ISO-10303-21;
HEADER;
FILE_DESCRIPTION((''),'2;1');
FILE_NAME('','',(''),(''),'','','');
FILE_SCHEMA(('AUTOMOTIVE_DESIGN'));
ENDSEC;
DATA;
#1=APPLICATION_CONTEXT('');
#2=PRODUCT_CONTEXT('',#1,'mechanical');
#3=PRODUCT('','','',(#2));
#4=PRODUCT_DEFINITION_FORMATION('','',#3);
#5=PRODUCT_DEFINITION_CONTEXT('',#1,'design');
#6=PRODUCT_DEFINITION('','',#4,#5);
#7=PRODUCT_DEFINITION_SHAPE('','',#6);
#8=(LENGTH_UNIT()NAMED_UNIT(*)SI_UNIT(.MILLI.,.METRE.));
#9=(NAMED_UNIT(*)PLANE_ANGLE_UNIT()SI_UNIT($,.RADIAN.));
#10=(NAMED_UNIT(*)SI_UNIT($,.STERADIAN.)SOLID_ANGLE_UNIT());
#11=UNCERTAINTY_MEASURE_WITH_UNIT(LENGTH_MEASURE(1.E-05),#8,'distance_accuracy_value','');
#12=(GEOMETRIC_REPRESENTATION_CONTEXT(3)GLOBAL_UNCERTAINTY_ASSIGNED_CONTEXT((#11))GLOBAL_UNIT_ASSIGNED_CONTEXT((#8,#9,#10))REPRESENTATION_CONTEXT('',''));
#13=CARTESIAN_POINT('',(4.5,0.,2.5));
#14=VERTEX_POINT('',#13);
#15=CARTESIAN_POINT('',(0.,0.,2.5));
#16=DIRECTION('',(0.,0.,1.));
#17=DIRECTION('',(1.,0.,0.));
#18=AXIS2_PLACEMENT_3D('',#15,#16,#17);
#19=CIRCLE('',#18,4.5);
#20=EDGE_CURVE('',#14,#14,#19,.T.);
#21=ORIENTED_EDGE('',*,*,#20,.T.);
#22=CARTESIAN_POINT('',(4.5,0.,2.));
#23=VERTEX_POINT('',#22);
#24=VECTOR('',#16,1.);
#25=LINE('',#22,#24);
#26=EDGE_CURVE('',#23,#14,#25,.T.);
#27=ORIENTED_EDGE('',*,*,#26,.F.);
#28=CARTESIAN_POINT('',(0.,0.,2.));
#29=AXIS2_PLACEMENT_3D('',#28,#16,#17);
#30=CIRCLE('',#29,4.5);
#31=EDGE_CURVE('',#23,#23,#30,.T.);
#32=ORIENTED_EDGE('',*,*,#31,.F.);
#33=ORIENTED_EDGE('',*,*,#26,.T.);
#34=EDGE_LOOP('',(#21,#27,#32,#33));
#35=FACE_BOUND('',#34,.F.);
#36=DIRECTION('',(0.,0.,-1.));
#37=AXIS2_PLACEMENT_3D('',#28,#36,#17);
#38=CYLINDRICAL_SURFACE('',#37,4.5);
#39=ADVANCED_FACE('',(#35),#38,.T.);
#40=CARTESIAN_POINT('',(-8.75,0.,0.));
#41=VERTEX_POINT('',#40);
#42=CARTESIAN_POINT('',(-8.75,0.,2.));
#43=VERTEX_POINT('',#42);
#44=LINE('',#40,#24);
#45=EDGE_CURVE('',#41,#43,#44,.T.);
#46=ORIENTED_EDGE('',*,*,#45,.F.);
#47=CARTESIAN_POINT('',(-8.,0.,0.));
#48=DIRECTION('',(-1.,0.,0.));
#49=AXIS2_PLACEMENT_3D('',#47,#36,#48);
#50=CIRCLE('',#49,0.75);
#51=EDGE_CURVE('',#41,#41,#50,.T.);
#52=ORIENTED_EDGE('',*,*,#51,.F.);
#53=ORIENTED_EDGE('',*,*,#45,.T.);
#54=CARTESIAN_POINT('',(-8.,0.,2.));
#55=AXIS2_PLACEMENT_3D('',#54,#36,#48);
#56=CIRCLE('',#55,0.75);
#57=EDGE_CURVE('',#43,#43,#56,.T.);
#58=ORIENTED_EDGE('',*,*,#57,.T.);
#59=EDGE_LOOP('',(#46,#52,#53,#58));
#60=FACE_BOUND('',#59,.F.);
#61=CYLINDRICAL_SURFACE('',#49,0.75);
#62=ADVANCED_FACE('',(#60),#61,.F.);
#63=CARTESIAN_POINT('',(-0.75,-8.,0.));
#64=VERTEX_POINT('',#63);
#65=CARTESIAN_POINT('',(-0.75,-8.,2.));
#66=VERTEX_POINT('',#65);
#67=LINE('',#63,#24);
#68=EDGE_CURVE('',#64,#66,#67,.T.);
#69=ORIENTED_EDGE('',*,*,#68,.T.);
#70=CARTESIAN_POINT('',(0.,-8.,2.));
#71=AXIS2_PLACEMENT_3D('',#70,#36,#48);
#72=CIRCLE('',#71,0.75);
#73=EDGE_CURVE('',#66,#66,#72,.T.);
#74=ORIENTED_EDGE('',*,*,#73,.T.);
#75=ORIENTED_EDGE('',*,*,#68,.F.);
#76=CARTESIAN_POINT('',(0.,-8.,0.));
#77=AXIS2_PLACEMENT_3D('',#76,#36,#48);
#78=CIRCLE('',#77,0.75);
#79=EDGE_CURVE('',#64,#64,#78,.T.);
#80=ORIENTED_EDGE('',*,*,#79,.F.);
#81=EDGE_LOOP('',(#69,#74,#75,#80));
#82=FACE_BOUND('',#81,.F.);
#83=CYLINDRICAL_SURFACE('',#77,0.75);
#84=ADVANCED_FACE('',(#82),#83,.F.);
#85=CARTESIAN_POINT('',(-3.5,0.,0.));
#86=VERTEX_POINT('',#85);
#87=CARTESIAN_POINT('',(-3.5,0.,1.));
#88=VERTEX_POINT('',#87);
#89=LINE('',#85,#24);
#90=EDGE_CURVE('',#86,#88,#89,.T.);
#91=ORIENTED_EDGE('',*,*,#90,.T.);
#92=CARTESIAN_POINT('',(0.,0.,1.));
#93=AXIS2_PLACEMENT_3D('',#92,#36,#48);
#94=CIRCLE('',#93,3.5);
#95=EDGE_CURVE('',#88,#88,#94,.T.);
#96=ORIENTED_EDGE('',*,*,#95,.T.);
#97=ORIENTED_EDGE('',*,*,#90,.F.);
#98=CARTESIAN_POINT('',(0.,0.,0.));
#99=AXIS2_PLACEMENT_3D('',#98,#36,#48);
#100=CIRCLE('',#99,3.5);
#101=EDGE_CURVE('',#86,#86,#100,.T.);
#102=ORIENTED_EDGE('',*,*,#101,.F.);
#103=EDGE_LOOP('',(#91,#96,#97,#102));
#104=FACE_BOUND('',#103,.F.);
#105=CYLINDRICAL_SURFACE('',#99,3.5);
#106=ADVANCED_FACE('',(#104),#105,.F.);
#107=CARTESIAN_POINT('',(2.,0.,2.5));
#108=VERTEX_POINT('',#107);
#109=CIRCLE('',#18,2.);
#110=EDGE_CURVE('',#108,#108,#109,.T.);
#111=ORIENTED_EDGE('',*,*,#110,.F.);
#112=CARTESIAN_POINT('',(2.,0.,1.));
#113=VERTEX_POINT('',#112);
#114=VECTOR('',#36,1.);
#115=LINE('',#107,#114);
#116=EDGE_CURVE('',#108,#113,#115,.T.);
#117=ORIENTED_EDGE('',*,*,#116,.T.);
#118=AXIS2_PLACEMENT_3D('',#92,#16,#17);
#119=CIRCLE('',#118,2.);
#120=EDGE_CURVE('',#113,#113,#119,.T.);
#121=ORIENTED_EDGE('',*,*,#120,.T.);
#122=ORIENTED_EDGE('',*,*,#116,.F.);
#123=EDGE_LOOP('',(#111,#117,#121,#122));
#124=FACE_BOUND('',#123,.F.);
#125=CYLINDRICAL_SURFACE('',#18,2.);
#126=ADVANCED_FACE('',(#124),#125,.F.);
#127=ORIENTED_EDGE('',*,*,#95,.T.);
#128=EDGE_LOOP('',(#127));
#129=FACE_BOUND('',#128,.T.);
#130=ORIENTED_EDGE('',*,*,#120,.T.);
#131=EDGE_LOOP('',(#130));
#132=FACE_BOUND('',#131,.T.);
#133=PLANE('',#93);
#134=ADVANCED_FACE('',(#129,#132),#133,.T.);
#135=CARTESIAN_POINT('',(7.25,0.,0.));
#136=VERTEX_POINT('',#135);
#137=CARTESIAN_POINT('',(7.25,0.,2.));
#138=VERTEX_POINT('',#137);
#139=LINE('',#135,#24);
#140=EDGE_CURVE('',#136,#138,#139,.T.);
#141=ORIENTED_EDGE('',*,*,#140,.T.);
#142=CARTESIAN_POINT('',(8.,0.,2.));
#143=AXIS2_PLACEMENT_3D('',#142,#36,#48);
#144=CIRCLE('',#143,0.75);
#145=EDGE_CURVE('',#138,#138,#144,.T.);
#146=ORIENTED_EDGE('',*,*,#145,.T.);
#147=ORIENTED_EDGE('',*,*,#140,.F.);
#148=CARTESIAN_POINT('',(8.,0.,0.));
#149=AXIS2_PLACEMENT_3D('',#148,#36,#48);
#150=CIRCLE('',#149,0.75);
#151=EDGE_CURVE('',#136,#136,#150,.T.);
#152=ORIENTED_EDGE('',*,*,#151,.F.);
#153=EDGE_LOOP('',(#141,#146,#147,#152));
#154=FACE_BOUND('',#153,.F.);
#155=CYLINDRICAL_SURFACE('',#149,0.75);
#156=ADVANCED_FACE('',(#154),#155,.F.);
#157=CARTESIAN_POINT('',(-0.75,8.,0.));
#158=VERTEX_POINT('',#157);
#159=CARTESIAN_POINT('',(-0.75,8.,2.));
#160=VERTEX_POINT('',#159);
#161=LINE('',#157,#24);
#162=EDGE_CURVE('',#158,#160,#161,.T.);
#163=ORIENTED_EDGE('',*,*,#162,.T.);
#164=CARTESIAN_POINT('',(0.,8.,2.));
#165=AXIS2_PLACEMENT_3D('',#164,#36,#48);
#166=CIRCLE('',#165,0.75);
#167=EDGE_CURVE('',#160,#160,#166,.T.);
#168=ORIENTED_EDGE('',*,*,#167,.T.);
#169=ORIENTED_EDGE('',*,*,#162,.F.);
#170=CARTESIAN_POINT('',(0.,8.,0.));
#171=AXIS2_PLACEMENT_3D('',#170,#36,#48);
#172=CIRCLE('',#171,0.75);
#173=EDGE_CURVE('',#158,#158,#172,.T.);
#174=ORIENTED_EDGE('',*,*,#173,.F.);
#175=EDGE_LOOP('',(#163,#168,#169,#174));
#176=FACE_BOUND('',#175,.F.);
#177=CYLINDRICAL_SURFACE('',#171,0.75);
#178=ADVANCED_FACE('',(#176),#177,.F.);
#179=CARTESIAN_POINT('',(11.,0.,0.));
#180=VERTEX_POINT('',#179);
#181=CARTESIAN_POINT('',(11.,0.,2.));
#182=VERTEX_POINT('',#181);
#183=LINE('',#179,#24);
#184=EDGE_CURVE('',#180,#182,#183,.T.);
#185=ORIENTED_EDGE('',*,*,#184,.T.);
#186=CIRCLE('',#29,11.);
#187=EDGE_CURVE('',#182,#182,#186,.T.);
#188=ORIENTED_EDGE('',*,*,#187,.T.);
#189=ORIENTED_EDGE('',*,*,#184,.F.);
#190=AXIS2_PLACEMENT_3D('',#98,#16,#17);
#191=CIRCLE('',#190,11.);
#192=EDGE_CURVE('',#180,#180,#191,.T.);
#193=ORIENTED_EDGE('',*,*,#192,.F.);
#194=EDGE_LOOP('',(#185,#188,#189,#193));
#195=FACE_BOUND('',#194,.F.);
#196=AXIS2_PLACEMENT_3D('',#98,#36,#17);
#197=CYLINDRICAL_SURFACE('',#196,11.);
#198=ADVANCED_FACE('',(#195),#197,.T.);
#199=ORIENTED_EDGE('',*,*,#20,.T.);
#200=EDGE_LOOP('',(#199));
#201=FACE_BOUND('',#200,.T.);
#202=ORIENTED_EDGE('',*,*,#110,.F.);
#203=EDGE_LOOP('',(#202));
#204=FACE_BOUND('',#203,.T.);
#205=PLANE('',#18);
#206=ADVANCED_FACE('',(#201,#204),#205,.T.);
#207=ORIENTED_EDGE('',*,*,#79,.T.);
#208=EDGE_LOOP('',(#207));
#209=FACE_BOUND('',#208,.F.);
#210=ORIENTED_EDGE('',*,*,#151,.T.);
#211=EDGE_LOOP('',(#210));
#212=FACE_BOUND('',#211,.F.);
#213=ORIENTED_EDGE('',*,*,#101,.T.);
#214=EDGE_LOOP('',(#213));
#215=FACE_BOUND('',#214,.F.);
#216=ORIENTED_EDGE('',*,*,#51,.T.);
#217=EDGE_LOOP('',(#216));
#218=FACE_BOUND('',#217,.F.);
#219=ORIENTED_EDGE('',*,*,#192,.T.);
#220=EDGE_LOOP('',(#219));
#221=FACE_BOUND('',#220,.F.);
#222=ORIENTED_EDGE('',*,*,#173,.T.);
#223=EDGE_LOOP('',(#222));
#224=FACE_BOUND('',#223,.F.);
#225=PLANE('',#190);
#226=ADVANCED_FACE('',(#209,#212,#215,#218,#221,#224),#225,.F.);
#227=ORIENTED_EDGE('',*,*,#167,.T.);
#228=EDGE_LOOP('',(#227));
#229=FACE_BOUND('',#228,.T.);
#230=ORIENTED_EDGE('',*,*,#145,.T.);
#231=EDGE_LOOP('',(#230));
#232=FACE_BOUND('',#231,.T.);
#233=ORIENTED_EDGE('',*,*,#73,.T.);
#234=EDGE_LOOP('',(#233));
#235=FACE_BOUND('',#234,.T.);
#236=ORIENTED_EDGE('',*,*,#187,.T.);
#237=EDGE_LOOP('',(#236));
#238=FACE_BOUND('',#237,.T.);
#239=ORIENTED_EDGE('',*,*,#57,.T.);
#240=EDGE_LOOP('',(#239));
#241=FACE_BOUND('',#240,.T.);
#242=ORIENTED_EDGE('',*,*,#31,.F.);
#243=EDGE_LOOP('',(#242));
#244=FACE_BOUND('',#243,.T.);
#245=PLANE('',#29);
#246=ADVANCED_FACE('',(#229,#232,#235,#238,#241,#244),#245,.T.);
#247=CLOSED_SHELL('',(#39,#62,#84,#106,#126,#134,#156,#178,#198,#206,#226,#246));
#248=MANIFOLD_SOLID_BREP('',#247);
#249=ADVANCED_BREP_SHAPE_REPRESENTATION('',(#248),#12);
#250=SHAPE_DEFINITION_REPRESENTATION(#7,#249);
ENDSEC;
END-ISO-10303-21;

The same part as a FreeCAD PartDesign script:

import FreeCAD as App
import Part
import Sketcher

V = App.Vector

doc = App.newDocument("Part")
params = doc.addObject("Spreadsheet::Sheet", "Params")
for row, (alias, value) in enumerate([
    ("sketch1_diameter", "22 mm"),
    ("pad1_length", "2 mm"),
    ("sketch2_diameter", "9 mm"),
    ("pad2_length", "0.5 mm"),
    ("sketch3_diameter", "4 mm"),
    ("pocket1_length", "555 mm"),
    ("sketch4_diameter", "7 mm"),
    ("pocket2_length", "1 mm"),
    ("sketch5_diameter", "1.5 mm"),
    ("pocket3_length", "44 mm"),
], start=1):
    params.set(f"A{row}", alias)
    params.set(f"B{row}", "=" + value)
    params.setAlias(f"B{row}", alias)

body = doc.addObject("PartDesign::Body", "Body")

# Sketch on XY plane
sketch1 = body.newObject("Sketcher::SketchObject", "Sketch")
sketch1.AttachmentSupport = (doc.getObject("XY_Plane"), [""])
sketch1.MapMode = "FlatFace"
sketch1.addGeometry(Part.Circle(V(0, 0, 0), V(0, 0, 1), 11), False)
sketch1.addConstraint([
    Sketcher.Constraint("Coincident", 0, 3, -1, 1),
    Sketcher.Constraint("Diameter", 0, 22.0),
])
sketch1.setExpression("Constraints[1]", "Params.sketch1_diameter")
pad1 = body.newObject("PartDesign::Pad", "Pad")
pad1.Profile = sketch1
pad1.setExpression("Length", "Params.pad1_length")

# Sketch on XY plane
sketch2 = body.newObject("Sketcher::SketchObject", "Sketch001")
sketch2.AttachmentSupport = (doc.getObject("XY_Plane"), [""])
sketch2.MapMode = "FlatFace"
sketch2.AttachmentOffset = App.Placement(V(0, 0, 2), App.Rotation())
sketch2.addGeometry(Part.Circle(V(0, 0, 0), V(0, 0, 1), 4.5), False)
sketch2.addConstraint([
    Sketcher.Constraint("Coincident", 0, 3, -1, 1),
    Sketcher.Constraint("Diameter", 0, 9.0),
])
sketch2.setExpression("Constraints[1]", "Params.sketch2_diameter")
pad2 = body.newObject("PartDesign::Pad", "Pad001")
pad2.Profile = sketch2
pad2.setExpression("Length", "Params.pad2_length")

# Sketch on XY plane
sketch3 = body.newObject("Sketcher::SketchObject", "Sketch002")
sketch3.AttachmentSupport = (doc.getObject("XY_Plane"), [""])
sketch3.MapMode = "FlatFace"
sketch3.AttachmentOffset = App.Placement(V(0, 0, 2.5), App.Rotation())
sketch3.addGeometry(Part.Circle(V(0, 0, 0), V(0, 0, 1), 2), False)
sketch3.addConstraint([
    Sketcher.Constraint("Coincident", 0, 3, -1, 1),
    Sketcher.Constraint("Diameter", 0, 4.0),
])
sketch3.setExpression("Constraints[1]", "Params.sketch3_diameter")
pocket1 = body.newObject("PartDesign::Pocket", "Pocket")
pocket1.Profile = sketch3
pocket1.setExpression("Length", "Params.pocket1_length")

# Sketch on XY plane
sketch4 = body.newObject("Sketcher::SketchObject", "Sketch003")
sketch4.AttachmentSupport = (doc.getObject("XY_Plane"), [""])
sketch4.MapMode = "FlatFace"
sketch4.addGeometry(Part.Circle(V(0, 0, 0), V(0, 0, 1), 3.5), False)
sketch4.addConstraint([
    Sketcher.Constraint("Coincident", 0, 3, -1, 1),
    Sketcher.Constraint("Diameter", 0, 7.0),
])
sketch4.setExpression("Constraints[1]", "Params.sketch4_diameter")
pocket2 = body.newObject("PartDesign::Pocket", "Pocket001")
pocket2.Profile = sketch4
pocket2.setExpression("Length", "Params.pocket2_length")
pocket2.Reversed = True

# Sketch on XY plane
sketch5 = body.newObject("Sketcher::SketchObject", "Sketch004")
sketch5.AttachmentSupport = (doc.getObject("XY_Plane"), [""])
sketch5.MapMode = "FlatFace"
sketch5.addGeometry([
    Part.Circle(V(0, -8, 0), V(0, 0, 1), 0.8),
    Part.Circle(V(-8, 0, 0), V(0, 0, 1), 0.8),
    Part.Circle(V(0, 8, 0), V(0, 0, 1), 0.8),
    Part.Circle(V(8, 0, 0), V(0, 0, 1), 0.8),
], False)
sketch5.addConstraint([
    Sketcher.Constraint("Equal", 0, 1),
    Sketcher.Constraint("Equal", 1, 2),
    Sketcher.Constraint("Equal", 2, 3),
    Sketcher.Constraint("Symmetric", 0, 3, 2, 3, -1, 1),
    Sketcher.Constraint("Symmetric", 1, 3, 3, 3, -1, 1),
    Sketcher.Constraint("PointOnObject", 0, 3, -2),
    Sketcher.Constraint("PointOnObject", 1, 3, -1),
    Sketcher.Constraint("Diameter", 0, 1.5),
    Sketcher.Constraint("DistanceY", 0, 3, -1, 1, 8.0),
    Sketcher.Constraint("DistanceX", 1, 3, -1, 1, 8.0),
])
sketch5.setExpression("Constraints[7]", "Params.sketch5_diameter")
pocket3 = body.newObject("PartDesign::Pocket", "Pocket002")
pocket3.Profile = sketch5
pocket3.setExpression("Length", "Params.pocket3_length")
pocket3.Reversed = True

doc.recompute()
